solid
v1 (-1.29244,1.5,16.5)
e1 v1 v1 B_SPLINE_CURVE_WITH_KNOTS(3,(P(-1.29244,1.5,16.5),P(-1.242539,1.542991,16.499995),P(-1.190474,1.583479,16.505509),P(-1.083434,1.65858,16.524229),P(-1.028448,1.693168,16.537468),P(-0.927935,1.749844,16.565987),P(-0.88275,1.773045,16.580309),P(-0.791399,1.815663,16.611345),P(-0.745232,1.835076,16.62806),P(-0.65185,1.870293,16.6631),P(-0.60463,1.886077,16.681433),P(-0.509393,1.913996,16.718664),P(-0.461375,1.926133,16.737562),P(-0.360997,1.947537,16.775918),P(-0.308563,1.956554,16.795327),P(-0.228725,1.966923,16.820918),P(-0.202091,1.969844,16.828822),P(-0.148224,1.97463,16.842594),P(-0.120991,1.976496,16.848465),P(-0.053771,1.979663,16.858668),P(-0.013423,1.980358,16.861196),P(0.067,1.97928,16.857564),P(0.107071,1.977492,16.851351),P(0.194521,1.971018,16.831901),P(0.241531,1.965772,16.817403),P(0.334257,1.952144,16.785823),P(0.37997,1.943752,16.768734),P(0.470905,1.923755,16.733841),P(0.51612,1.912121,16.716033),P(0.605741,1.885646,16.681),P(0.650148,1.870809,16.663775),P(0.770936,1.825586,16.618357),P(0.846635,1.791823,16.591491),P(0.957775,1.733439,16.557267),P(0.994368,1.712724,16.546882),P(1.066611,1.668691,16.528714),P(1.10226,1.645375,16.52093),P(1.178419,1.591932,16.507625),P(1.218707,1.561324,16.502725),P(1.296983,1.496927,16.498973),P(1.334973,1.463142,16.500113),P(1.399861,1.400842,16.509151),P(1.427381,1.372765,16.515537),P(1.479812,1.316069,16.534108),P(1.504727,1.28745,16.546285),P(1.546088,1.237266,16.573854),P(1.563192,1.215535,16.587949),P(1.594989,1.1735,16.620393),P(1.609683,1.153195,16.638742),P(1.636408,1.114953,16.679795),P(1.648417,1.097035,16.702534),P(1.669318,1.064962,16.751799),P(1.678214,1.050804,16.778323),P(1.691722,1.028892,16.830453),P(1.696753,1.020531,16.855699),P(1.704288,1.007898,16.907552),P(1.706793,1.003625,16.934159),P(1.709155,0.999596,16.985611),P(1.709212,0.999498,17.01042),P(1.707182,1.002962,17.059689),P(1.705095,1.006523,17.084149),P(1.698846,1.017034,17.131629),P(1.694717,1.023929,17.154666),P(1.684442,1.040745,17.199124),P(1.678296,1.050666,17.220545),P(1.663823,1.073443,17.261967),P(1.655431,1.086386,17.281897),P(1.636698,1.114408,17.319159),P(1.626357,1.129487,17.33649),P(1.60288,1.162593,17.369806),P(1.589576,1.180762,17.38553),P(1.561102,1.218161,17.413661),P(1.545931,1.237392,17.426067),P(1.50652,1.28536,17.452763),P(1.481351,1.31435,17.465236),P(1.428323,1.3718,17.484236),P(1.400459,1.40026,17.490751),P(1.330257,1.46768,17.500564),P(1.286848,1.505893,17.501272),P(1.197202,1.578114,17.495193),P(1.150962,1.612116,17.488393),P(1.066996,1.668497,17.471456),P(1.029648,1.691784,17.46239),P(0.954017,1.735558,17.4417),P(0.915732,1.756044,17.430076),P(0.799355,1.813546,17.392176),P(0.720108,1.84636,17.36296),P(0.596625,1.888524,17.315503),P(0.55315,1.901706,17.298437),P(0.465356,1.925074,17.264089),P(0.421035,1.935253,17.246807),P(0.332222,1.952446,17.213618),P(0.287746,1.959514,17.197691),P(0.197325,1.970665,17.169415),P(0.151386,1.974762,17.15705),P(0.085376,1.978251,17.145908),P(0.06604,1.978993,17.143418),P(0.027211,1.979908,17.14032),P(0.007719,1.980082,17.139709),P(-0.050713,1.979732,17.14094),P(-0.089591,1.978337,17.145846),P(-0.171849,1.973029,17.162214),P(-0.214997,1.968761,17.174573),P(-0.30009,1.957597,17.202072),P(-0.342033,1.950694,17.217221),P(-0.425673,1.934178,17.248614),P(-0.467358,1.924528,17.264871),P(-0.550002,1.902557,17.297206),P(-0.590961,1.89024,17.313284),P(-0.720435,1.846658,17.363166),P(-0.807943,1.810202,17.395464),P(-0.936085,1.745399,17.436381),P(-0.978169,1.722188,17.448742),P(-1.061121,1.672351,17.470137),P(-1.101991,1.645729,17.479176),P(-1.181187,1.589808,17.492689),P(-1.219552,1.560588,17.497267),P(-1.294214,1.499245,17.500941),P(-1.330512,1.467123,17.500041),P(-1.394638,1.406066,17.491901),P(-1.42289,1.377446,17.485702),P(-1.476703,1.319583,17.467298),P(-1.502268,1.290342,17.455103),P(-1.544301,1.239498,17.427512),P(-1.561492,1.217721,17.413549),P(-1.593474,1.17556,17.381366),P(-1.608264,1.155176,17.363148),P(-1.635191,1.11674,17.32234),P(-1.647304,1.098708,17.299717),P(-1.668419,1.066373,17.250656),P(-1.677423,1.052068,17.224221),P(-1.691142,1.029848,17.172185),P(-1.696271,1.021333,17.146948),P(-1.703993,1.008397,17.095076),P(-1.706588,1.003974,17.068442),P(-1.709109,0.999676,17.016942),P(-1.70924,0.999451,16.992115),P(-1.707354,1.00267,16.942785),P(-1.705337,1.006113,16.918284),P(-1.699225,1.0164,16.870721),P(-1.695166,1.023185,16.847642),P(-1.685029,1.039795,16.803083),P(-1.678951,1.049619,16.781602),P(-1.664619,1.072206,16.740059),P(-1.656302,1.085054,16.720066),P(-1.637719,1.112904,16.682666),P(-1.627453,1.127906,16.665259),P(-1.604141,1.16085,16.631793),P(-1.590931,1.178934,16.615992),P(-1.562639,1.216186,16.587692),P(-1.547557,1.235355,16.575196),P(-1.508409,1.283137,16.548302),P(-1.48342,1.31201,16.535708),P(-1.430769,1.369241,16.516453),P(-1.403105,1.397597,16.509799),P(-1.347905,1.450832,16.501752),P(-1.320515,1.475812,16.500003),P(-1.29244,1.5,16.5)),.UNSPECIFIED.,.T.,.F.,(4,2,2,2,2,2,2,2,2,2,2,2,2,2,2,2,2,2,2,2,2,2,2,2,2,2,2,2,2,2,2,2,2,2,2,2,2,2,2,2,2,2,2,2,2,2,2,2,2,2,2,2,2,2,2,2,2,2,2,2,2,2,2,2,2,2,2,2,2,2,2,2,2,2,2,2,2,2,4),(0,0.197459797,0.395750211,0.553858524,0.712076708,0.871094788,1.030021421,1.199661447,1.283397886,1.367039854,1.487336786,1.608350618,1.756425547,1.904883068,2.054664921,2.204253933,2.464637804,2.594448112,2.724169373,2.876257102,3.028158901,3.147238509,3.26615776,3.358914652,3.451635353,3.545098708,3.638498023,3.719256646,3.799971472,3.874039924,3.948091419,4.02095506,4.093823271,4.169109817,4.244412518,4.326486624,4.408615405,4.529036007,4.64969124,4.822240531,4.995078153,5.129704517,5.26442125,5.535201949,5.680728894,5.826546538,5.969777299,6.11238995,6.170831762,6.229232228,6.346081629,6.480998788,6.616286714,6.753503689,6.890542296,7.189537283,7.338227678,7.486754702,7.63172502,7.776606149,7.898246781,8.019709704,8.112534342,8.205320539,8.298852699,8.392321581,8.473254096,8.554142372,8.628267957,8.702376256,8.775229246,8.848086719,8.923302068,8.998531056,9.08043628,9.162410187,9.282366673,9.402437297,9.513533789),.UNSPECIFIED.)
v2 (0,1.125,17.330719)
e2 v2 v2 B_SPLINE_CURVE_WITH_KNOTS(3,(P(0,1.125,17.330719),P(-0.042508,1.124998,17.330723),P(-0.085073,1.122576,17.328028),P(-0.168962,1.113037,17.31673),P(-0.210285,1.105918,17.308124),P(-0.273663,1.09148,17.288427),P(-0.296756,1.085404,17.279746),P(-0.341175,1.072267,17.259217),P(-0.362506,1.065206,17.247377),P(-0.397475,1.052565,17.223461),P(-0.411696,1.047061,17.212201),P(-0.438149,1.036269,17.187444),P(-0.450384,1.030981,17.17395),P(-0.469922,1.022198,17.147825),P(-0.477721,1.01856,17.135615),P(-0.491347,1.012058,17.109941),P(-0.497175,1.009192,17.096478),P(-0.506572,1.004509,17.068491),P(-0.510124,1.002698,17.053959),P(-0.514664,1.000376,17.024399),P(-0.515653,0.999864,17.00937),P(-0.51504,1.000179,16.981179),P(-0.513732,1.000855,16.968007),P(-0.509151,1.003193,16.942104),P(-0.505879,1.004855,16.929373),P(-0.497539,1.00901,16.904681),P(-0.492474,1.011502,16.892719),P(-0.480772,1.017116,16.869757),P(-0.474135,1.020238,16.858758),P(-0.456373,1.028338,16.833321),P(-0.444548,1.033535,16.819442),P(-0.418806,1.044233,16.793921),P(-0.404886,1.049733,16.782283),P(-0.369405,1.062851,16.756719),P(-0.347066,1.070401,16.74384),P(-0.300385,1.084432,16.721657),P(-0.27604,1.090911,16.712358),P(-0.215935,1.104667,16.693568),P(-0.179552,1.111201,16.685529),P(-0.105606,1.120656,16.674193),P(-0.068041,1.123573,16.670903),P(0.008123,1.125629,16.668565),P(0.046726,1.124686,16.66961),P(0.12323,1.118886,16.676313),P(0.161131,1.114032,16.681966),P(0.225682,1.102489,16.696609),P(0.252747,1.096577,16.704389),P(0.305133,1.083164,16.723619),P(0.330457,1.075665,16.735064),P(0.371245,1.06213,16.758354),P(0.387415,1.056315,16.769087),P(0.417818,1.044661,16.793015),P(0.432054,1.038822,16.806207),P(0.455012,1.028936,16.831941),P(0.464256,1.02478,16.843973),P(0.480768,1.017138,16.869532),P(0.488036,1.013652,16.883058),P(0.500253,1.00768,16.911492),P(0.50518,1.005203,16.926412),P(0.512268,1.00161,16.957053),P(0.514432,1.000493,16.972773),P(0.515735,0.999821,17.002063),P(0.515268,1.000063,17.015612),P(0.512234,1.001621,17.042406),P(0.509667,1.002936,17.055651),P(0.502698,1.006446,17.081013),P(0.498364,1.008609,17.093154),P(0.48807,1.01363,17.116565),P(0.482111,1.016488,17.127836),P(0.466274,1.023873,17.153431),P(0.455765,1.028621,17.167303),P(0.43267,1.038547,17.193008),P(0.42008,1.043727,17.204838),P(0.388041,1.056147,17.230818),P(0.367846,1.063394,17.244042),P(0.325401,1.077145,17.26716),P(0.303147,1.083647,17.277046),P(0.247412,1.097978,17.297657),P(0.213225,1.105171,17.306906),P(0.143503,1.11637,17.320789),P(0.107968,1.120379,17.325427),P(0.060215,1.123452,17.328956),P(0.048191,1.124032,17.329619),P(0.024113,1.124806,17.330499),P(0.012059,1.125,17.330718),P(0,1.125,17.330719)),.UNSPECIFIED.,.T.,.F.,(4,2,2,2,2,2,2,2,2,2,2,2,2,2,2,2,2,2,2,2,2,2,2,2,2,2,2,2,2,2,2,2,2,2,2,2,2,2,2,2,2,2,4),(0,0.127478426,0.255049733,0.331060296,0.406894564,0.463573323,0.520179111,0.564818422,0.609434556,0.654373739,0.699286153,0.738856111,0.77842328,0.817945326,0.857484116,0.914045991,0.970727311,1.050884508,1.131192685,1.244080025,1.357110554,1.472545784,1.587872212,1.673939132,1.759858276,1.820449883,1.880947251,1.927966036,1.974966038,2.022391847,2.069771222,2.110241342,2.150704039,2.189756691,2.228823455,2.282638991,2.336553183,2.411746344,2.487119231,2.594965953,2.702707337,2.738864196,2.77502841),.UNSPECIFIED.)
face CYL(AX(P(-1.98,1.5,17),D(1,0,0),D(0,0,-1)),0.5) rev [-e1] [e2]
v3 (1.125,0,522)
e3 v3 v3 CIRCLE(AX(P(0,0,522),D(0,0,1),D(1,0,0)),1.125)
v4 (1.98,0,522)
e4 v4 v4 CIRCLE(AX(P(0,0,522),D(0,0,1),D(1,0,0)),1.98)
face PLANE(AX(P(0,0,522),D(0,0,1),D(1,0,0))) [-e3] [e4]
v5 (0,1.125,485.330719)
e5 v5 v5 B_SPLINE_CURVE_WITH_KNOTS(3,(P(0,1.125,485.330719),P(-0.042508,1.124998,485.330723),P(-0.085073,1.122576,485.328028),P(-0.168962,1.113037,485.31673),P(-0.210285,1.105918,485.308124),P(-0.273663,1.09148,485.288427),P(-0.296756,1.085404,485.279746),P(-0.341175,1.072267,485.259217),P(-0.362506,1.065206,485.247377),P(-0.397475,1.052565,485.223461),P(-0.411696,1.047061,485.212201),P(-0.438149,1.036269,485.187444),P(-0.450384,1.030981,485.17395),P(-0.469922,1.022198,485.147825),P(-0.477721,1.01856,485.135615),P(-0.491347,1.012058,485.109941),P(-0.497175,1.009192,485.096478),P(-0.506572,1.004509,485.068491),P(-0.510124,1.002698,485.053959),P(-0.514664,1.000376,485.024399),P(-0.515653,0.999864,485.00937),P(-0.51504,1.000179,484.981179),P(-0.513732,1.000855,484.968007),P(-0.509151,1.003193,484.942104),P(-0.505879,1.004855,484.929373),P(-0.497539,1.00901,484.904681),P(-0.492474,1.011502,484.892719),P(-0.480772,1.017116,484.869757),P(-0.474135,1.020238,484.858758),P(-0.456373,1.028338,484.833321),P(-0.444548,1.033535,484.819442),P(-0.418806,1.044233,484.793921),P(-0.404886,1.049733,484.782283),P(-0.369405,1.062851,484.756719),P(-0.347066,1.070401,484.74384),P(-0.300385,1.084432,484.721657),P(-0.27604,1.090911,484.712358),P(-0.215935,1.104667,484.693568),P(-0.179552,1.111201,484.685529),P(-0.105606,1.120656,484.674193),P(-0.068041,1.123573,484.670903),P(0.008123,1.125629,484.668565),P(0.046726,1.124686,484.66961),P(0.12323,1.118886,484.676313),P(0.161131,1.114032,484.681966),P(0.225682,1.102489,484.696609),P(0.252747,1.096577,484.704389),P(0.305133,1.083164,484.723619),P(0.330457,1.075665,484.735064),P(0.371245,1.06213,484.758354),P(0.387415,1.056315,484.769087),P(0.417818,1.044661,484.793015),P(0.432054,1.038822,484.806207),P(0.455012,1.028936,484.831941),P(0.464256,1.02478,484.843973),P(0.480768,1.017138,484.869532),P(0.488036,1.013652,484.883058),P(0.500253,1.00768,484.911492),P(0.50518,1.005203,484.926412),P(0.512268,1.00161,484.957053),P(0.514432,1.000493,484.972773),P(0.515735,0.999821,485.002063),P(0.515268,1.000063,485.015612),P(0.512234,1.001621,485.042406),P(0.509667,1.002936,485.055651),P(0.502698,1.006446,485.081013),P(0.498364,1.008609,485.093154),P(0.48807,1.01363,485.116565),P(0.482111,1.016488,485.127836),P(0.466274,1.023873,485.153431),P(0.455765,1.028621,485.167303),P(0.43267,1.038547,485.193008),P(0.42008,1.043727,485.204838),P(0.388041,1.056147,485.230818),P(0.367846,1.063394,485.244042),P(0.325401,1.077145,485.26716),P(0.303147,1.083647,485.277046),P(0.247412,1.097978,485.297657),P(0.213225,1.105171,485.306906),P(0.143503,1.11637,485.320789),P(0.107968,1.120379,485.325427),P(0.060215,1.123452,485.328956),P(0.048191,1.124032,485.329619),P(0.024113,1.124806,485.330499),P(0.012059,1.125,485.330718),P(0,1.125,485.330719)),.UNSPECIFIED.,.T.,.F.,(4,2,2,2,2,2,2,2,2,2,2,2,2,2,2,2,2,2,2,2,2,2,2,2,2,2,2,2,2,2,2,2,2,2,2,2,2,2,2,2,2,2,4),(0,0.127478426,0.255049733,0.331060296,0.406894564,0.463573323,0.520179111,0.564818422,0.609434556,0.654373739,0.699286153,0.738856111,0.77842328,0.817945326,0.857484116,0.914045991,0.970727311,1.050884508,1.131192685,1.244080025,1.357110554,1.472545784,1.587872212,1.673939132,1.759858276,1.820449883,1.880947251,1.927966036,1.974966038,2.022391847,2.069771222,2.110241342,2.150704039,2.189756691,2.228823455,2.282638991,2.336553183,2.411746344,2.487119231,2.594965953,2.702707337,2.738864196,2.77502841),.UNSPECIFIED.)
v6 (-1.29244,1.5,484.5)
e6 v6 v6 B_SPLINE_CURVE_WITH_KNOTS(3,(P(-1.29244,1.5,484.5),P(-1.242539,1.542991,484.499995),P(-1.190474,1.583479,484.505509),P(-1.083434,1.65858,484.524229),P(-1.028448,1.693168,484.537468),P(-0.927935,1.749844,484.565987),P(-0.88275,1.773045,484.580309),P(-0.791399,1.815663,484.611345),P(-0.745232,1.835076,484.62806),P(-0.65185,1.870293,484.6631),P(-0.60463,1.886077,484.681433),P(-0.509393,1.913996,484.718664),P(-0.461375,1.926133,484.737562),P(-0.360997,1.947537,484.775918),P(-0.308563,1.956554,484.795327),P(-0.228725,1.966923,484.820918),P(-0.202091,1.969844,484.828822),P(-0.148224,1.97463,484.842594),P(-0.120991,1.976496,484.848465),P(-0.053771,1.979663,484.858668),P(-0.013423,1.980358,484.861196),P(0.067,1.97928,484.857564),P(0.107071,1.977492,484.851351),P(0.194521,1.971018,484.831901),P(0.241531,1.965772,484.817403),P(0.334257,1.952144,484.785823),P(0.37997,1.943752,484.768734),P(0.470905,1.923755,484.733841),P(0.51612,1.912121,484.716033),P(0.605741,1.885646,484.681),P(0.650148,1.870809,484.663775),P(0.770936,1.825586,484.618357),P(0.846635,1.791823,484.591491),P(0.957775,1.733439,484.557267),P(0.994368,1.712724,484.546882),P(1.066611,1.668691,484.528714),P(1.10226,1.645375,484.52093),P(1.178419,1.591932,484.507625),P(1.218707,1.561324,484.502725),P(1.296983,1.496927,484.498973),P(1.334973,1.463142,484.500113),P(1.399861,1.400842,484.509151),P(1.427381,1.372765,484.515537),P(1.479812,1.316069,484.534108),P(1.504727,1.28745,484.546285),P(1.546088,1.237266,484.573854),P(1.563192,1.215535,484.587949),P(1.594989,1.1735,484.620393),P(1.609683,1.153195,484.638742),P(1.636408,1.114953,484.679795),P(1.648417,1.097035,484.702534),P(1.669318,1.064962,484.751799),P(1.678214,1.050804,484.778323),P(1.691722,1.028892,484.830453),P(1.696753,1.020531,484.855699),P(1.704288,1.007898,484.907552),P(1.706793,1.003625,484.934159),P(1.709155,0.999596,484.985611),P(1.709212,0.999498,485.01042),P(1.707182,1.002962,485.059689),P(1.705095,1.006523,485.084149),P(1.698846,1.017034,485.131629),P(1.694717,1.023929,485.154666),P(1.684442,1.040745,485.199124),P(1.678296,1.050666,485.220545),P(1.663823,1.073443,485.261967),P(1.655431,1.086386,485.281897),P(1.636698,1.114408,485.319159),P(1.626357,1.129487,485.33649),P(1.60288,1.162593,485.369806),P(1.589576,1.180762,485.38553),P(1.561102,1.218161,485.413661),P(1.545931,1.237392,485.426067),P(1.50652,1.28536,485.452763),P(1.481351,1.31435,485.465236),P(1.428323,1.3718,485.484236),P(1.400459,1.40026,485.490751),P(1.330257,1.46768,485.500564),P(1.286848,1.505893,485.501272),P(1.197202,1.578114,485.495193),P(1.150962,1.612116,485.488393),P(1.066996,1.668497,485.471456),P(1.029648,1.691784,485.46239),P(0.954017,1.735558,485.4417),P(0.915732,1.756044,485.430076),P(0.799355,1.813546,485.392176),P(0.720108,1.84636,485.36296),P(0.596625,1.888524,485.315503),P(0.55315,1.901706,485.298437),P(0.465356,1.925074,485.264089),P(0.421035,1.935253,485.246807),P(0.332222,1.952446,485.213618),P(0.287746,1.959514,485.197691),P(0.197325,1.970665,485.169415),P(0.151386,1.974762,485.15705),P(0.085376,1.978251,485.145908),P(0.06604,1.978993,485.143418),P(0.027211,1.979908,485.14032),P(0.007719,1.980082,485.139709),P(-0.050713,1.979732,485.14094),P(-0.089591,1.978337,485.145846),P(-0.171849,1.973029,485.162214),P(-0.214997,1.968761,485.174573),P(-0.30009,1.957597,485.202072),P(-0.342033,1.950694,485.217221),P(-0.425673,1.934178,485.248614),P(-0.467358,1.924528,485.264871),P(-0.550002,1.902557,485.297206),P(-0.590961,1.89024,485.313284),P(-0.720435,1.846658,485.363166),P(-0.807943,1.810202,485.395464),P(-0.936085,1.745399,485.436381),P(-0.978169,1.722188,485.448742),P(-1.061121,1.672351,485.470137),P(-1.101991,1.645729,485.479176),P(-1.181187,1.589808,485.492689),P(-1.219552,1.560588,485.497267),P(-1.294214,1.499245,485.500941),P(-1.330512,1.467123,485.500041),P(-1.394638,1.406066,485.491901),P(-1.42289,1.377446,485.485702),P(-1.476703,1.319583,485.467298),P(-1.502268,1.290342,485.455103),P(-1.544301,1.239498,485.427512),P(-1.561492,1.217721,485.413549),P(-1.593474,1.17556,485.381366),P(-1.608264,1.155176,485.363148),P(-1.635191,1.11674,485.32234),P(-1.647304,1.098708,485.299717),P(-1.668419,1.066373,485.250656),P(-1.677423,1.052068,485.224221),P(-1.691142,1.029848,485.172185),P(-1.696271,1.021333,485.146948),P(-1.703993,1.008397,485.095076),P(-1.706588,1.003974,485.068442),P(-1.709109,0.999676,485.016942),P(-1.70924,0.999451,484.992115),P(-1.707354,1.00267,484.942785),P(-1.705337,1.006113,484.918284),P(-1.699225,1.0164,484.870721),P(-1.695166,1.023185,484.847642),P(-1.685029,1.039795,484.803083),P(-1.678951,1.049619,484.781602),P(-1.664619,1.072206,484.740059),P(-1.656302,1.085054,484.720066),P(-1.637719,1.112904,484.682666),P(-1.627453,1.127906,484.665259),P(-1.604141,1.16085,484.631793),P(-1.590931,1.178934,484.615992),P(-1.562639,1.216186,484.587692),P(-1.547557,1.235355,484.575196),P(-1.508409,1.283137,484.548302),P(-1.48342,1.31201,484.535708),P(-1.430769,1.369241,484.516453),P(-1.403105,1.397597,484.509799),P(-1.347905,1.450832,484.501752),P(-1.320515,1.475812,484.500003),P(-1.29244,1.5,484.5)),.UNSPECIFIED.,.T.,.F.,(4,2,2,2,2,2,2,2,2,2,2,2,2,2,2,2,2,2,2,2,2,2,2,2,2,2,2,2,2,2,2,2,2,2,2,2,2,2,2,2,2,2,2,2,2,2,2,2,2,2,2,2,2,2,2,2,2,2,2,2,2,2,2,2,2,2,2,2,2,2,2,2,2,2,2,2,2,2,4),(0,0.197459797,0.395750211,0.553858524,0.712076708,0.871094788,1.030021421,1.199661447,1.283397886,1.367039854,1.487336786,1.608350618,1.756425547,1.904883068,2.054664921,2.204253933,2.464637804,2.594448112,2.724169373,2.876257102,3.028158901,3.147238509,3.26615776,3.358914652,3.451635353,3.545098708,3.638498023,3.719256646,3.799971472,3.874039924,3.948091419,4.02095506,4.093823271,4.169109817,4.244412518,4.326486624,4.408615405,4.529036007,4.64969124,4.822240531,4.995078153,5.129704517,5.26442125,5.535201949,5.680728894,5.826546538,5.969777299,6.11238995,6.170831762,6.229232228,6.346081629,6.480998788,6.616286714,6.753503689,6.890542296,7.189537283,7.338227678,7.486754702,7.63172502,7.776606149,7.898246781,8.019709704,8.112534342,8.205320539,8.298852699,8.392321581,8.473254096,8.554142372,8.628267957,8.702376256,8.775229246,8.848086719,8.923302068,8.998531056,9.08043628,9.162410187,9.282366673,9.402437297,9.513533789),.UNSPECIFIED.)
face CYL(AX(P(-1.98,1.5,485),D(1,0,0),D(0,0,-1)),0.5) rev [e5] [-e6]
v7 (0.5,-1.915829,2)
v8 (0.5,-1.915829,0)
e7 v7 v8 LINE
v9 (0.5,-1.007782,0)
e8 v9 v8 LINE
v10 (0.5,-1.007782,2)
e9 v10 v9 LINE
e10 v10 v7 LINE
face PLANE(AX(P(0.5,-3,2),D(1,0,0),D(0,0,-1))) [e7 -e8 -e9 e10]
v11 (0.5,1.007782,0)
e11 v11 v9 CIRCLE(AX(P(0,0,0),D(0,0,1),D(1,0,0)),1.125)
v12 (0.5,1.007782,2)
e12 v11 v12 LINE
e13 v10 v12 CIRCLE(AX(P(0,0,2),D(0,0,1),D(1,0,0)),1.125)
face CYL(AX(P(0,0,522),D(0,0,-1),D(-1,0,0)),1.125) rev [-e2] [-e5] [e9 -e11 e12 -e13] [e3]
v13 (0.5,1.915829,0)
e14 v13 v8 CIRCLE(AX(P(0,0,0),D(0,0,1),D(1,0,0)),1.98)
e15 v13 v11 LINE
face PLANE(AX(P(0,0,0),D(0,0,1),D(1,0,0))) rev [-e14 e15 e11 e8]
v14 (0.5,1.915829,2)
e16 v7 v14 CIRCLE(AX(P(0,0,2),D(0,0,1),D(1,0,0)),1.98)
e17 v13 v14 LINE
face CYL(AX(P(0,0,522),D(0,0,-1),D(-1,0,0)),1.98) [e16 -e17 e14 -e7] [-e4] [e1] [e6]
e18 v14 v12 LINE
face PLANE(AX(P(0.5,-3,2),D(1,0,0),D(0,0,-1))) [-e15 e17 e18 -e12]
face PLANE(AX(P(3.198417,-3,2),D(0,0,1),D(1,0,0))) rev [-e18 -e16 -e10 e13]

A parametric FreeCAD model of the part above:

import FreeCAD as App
import Part
import Sketcher

V = App.Vector
Q = App.Units.Quantity

doc = App.newDocument("Part")
body = doc.addObject("PartDesign::Body", "Body")

# Sketch on XY plane
sketch1 = doc.addObject("Sketcher::SketchObject", "Sketch")
body.addObject(sketch1)
sketch1.AttachmentSupport = (doc.XY_Plane, [""])
sketch1.MapMode = "FlatFace"
sketch1.addGeometry([
    Part.Circle(V(0, 0, 0), V(0, 0, 1), 2),
    Part.Circle(V(0, 0, 0), V(0, 0, 1), 1.1),
], False)
sketch1.addConstraint([
    Sketcher.Constraint("Coincident", 0, 3, -1, 1),
    Sketcher.Constraint("Coincident", 1, 3, -1, 1),
    Sketcher.Constraint("Diameter", 0, Q("3.96 mm")),
    Sketcher.Constraint("Diameter", 1, Q("2.25 mm")),
])
pad1 = doc.addObject("PartDesign::Pad", "Pad")
body.addObject(pad1)
pad1.Profile = sketch1
pad1.Length = 522

# Sketch on YZ plane
sketch2 = doc.addObject("Sketcher::SketchObject", "Sketch001")
body.addObject(sketch2)
sketch2.AttachmentSupport = (doc.YZ_Plane, [""])
sketch2.MapMode = "FlatFace"
sketch2.addGeometry([
    Part.Circle(V(1.5, 485, 0), V(0, 0, 1), 0.5),
    Part.Circle(V(1.5, 17, 0), V(0, 0, 1), 0.5),
], False)
sketch2.addConstraint([
    Sketcher.Constraint("Equal", 0, 1),
    Sketcher.Constraint("Vertical", 0, 3, 1, 3),
    Sketcher.Constraint("Diameter", 0, Q("1 mm")),
    Sketcher.Constraint("DistanceY", -1, 1, 0, 3, Q("485 mm")),
    Sketcher.Constraint("DistanceY", -1, 1, 1, 3, Q("17 mm")),
    Sketcher.Constraint("DistanceX", -1, 1, 0, 3, Q("1.5 mm")),
])
pocket1 = doc.addObject("PartDesign::Pocket", "Pocket")
body.addObject(pocket1)
pocket1.Profile = sketch2
pocket1.Type = "ThroughAll"
pocket1.Midplane = True

# Sketch on XY plane
sketch3 = doc.addObject("Sketcher::SketchObject", "Sketch002")
body.addObject(sketch3)
sketch3.AttachmentSupport = (doc.XY_Plane, [""])
sketch3.MapMode = "FlatFace"
sketch3.addGeometry([
    Part.LineSegment(V(0.5, 3, 0), V(0.5, -3, 0)),
    Part.LineSegment(V(0.5, -3, 0), V(3.2, -3, 0)),
    Part.LineSegment(V(3.2, -3, 0), V(3.2, 3, 0)),
    Part.LineSegment(V(3.2, 3, 0), V(0.5, 3, 0)),
], False)
sketch3.addConstraint([
    Sketcher.Constraint("Coincident", 0, 2, 1, 1),
    Sketcher.Constraint("Coincident", 1, 2, 2, 1),
    Sketcher.Constraint("Coincident", 2, 2, 3, 1),
    Sketcher.Constraint("Coincident", 3, 2, 0, 1),
    Sketcher.Constraint("Vertical", 0),
    Sketcher.Constraint("Horizontal", 1),
    Sketcher.Constraint("Vertical", 2),
    Sketcher.Constraint("Horizontal", 3),
    Sketcher.Constraint("DistanceY", 0, 2, 0, 1, Q("6 mm")),
    Sketcher.Constraint("DistanceY", 0, 2, -1, 1, Q("3 mm")),
    Sketcher.Constraint("DistanceX", -1, 1, 0, 2, Q("0.5 mm")),
    Sketcher.Constraint("DistanceX", 1, 1, 1, 2, Q("2.698417 mm")),
])
pocket2 = doc.addObject("PartDesign::Pocket", "Pocket001")
body.addObject(pocket2)
pocket2.Profile = sketch3
pocket2.Length = 2
pocket2.Reversed = True

doc.recompute()
